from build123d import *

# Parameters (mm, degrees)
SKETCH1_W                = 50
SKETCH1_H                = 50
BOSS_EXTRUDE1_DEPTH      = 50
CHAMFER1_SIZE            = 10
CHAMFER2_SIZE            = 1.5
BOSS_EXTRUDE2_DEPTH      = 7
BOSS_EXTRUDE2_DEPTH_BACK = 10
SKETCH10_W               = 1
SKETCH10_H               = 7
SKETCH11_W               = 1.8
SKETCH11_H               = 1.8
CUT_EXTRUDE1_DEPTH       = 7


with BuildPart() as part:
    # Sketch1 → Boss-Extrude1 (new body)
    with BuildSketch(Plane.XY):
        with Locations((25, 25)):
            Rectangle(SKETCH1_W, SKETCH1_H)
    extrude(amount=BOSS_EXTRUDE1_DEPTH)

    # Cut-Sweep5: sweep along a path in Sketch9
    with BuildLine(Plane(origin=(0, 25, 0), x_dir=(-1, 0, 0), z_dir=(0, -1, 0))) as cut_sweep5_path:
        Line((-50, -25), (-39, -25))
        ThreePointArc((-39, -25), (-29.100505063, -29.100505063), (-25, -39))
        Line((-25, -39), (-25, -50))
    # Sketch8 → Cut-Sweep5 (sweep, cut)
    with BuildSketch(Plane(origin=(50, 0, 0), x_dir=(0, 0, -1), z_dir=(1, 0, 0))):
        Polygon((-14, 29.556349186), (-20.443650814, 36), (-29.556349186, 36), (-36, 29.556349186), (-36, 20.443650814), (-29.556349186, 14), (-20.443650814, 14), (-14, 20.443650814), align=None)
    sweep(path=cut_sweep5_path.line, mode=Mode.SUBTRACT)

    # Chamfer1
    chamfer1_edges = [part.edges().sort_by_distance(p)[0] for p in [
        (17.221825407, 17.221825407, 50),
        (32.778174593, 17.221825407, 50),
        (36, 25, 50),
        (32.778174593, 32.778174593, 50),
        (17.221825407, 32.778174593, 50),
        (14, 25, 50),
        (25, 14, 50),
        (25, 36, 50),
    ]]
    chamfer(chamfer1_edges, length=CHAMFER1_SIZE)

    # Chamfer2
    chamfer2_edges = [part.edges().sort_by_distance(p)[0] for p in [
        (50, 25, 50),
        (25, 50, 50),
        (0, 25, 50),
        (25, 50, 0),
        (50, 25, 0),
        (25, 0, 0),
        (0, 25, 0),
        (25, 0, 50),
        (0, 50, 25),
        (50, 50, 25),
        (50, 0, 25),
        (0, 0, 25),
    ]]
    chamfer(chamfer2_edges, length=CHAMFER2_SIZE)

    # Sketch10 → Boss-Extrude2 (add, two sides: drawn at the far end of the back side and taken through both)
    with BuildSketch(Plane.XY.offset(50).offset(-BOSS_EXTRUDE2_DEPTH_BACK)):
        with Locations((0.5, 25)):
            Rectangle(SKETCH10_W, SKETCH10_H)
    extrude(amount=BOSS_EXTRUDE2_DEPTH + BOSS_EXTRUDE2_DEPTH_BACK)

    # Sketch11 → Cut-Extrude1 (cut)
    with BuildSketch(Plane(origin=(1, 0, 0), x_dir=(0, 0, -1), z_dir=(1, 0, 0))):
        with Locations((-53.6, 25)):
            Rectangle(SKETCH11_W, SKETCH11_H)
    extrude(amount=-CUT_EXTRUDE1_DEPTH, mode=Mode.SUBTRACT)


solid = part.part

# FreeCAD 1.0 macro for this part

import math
import FreeCAD as App
import Part
import Sketcher
from FreeCAD import Vector
Q = App.Units.Quantity


def edges_at(feature, points):
    """Names of the edges that pass closest to the given points."""
    edges = feature.Shape.Edges
    near = lambda p: min(range(len(edges)), key=lambda i: edges[i].distToShape(Part.Vertex(*p))[0])
    return sorted({f"Edge{near(p) + 1}" for p in points})


def add_polygon(sketch, points):
    """Adds a closed chain of lines whose ends are joined by coincident constraints."""
    first, n = sketch.GeometryCount, len(points)
    for a, b in zip(points, points[1:] + points[:1]):
        sketch.addGeometry(Part.LineSegment(App.Vector(*a, 0), App.Vector(*b, 0)), False)
    for i in range(n):
        sketch.addConstraint(Sketcher.Constraint("Coincident", first + i, 2, first + (i + 1) % n, 1))

doc = App.newDocument("Part")
body = doc.addObject("PartDesign::Body", "Body")

# Sketch on XY plane
sketch1 = body.newObject("Sketcher::SketchObject", "Sketch")
sketch1.AttachmentSupport = (doc.getObject("XY_Plane"), [""])
sketch1.MapMode = "FlatFace"
add_polygon(sketch1, [(0, 50), (0, 0), (50, 0), (50, 50)])  # lines 0-3
sketch1.addConstraint(Sketcher.Constraint("Vertical", 0))
sketch1.addConstraint(Sketcher.Constraint("Horizontal", 1))
sketch1.addConstraint(Sketcher.Constraint("Vertical", 2))
sketch1.addConstraint(Sketcher.Constraint("Horizontal", 3))
sketch1.addConstraint(Sketcher.Constraint("Coincident", 0, 2, -1, 1))
sketch1.addConstraint(Sketcher.Constraint("Equal", 3, 0))
sketch1.addConstraint(Sketcher.Constraint("DistanceX", 1, 1, 1, 2, Q("50 mm")))
pad1 = body.newObject("PartDesign::Pad", "Pad")
pad1.Profile = sketch1
pad1.Length = 50

# Sketch on YZ plane
sketch2 = body.newObject("Sketcher::SketchObject", "Sketch001")
sketch2.AttachmentSupport = (doc.getObject("YZ_Plane"), [""])
sketch2.MapMode = "FlatFace"
sketch2.AttachmentOffset = App.Placement(Vector(0, 0, 50), App.Rotation())
add_polygon(sketch2, [(30, 14), (36, 20), (36, 30), (30, 36), (20, 36), (14, 30), (14, 20), (20, 14)])  # lines 0-7
sketch2.addConstraint(Sketcher.Constraint("Vertical", 1))
sketch2.addConstraint(Sketcher.Constraint("Horizontal", 3))
sketch2.addConstraint(Sketcher.Constraint("Vertical", 5))
sketch2.addConstraint(Sketcher.Constraint("Horizontal", 7))
sketch2.addConstraint(Sketcher.Constraint("Perpendicular", 0, 2))
sketch2.addConstraint(Sketcher.Constraint("Perpendicular", 2, 4))
sketch2.addConstraint(Sketcher.Constraint("Perpendicular", 4, 6))
sketch2.addConstraint(Sketcher.Constraint("Horizontal", 1, 2, 4, 2))
sketch2.addConstraint(Sketcher.Constraint("Horizontal", 0, 2, 5, 2))
sketch2.addConstraint(Sketcher.Constraint("Vertical", 3, 2, 6, 2))
sketch2.addConstraint(Sketcher.Constraint("Vertical", 2, 2, 7, 2))
sketch2.addConstraint(Sketcher.Constraint("Equal", 7, 1))
sketch2.addConstraint(Sketcher.Constraint("DistanceX", -1, 1, 0, 2, Q("36 mm")))
sketch2.addConstraint(Sketcher.Constraint("DistanceY", -1, 1, 2, 2, Q("36 mm")))
sketch2.addConstraint(Sketcher.Constraint("DistanceX", -1, 1, 4, 2, Q("14 mm")))
sketch2.addConstraint(Sketcher.Constraint("DistanceX", 3, 2, 3, 1, Q("9.112698 mm")))

# Sketch on XZ plane
sketch3 = body.newObject("Sketcher::SketchObject", "Sketch002")
sketch3.AttachmentSupport = (doc.getObject("XZ_Plane"), [""])
sketch3.MapMode = "FlatFace"
sketch3.AttachmentOffset = App.Placement(Vector(0, 0, -25), App.Rotation())
sketch3.addGeometry(Part.LineSegment(Vector(50, 25, 0), Vector(39, 25, 0)), False)
sketch3.addGeometry(Part.ArcOfCircle(Part.Circle(Vector(39, 39, 0), Vector(0, 0, 1), 14), math.radians(180), math.radians(270)), False)
sketch3.addGeometry(Part.LineSegment(Vector(25, 39, 0), Vector(25, 50, 0)), False)
sketch3.addConstraint(Sketcher.Constraint("Tangent", 0, 2, 1, 2))
sketch3.addConstraint(Sketcher.Constraint("Tangent", 1, 1, 2, 1))
sketch3.addConstraint(Sketcher.Constraint("Horizontal", 0))
sketch3.addConstraint(Sketcher.Constraint("Vertical", 2))
sketch3.addConstraint(Sketcher.Constraint("Equal", 0, 2))
sketch3.addConstraint(Sketcher.Constraint("Radius", 1, Q("14 mm")))
sketch3.addConstraint(Sketcher.Constraint("DistanceX", 0, 2, 0, 1, Q("11 mm")))
sketch3.addConstraint(Sketcher.Constraint("DistanceX", -1, 1, 1, 3, Q("39 mm")))
sketch3.addConstraint(Sketcher.Constraint("DistanceY", -1, 1, 1, 3, Q("39 mm")))
doc.recompute()

subtractivepipe = body.newObject("PartDesign::SubtractivePipe", "SubtractivePipe")
subtractivepipe.Profile = sketch2
subtractivepipe.Spine = (sketch3, ["Edge1", "Edge2", "Edge3"])
doc.recompute()

chamfer = body.newObject("PartDesign::Chamfer", "Chamfer")
chamfer.Base = (subtractivepipe, edges_at(subtractivepipe, [
    (17.222, 17.222, 50),
    (32.778, 17.222, 50),
    (36, 25, 50),
    (32.778, 32.778, 50),
    (17.222, 32.778, 50),
    (14, 25, 50),
    (25, 14, 50),
    (25, 36, 50),
]))
chamfer.Size = 10
doc.recompute()

chamfer2 = body.newObject("PartDesign::Chamfer", "Chamfer001")
chamfer2.Base = (chamfer, edges_at(chamfer, [
    (50, 25, 50),
    (25, 50, 50),
    (0, 25, 50),
    (25, 50, 0),
    (50, 25, 0),
    (25, 0, 0),
    (0, 25, 0),
    (25, 0, 50),
    (0, 50, 25),
    (50, 50, 25),
    (50, 0, 25),
    (0, 0, 25),
]))
chamfer2.Size = 1.5

# Sketch on XY plane
sketch4 = body.newObject("Sketcher::SketchObject", "Sketch003")
sketch4.AttachmentSupport = (doc.getObject("XY_Plane"), [""])
sketch4.MapMode = "FlatFace"
sketch4.AttachmentOffset = App.Placement(Vector(0, 0, 50), App.Rotation())
add_polygon(sketch4, [(0, 28.5), (0, 21.5), (1, 21.5), (1, 28.5)])  # lines 0-3
sketch4.addConstraint(Sketcher.Constraint("Vertical", 0))
sketch4.addConstraint(Sketcher.Constraint("Horizontal", 1))
sketch4.addConstraint(Sketcher.Constraint("Vertical", 2))
sketch4.addConstraint(Sketcher.Constraint("Horizontal", 3))
sketch4.addConstraint(Sketcher.Constraint("PointOnObject", 0, 2, -2))
sketch4.addConstraint(Sketcher.Constraint("DistanceX", 1, 1, 1, 2, Q("1 mm")))
sketch4.addConstraint(Sketcher.Constraint("DistanceY", 0, 2, 0, 1, Q("7 mm")))
sketch4.addConstraint(Sketcher.Constraint("DistanceY", -1, 1, 0, 2, Q("21.5 mm")))
pad2 = body.newObject("PartDesign::Pad", "Pad001")
pad2.Profile = sketch4
pad2.Type = "TwoLengths"
pad2.Length = 7
pad2.Length2 = 10

# Sketch on YZ plane
sketch5 = body.newObject("Sketcher::SketchObject", "Sketch004")
sketch5.AttachmentSupport = (doc.getObject("YZ_Plane"), [""])
sketch5.MapMode = "FlatFace"
sketch5.AttachmentOffset = App.Placement(Vector(0, 0, 1), App.Rotation())
add_polygon(sketch5, [(25.9, 54.5), (24.1, 54.5), (24.1, 52.7), (25.9, 52.7)])  # lines 0-3
sketch5.addConstraint(Sketcher.Constraint("Horizontal", 0))
sketch5.addConstraint(Sketcher.Constraint("Vertical", 1))
sketch5.addConstraint(Sketcher.Constraint("Horizontal", 2))
sketch5.addConstraint(Sketcher.Constraint("Vertical", 3))
sketch5.addConstraint(Sketcher.Constraint("Equal", 2, 1))
sketch5.addConstraint(Sketcher.Constraint("DistanceX", 0, 2, 0, 1, Q("1.8 mm")))
sketch5.addConstraint(Sketcher.Constraint("DistanceX", -1, 1, 0, 2, Q("24.1 mm")))
sketch5.addConstraint(Sketcher.Constraint("DistanceY", -1, 1, 0, 2, Q("54.5 mm")))
pocket1 = body.newObject("PartDesign::Pocket", "Pocket")
pocket1.Profile = sketch5
pocket1.Length = 7

doc.recompute()
